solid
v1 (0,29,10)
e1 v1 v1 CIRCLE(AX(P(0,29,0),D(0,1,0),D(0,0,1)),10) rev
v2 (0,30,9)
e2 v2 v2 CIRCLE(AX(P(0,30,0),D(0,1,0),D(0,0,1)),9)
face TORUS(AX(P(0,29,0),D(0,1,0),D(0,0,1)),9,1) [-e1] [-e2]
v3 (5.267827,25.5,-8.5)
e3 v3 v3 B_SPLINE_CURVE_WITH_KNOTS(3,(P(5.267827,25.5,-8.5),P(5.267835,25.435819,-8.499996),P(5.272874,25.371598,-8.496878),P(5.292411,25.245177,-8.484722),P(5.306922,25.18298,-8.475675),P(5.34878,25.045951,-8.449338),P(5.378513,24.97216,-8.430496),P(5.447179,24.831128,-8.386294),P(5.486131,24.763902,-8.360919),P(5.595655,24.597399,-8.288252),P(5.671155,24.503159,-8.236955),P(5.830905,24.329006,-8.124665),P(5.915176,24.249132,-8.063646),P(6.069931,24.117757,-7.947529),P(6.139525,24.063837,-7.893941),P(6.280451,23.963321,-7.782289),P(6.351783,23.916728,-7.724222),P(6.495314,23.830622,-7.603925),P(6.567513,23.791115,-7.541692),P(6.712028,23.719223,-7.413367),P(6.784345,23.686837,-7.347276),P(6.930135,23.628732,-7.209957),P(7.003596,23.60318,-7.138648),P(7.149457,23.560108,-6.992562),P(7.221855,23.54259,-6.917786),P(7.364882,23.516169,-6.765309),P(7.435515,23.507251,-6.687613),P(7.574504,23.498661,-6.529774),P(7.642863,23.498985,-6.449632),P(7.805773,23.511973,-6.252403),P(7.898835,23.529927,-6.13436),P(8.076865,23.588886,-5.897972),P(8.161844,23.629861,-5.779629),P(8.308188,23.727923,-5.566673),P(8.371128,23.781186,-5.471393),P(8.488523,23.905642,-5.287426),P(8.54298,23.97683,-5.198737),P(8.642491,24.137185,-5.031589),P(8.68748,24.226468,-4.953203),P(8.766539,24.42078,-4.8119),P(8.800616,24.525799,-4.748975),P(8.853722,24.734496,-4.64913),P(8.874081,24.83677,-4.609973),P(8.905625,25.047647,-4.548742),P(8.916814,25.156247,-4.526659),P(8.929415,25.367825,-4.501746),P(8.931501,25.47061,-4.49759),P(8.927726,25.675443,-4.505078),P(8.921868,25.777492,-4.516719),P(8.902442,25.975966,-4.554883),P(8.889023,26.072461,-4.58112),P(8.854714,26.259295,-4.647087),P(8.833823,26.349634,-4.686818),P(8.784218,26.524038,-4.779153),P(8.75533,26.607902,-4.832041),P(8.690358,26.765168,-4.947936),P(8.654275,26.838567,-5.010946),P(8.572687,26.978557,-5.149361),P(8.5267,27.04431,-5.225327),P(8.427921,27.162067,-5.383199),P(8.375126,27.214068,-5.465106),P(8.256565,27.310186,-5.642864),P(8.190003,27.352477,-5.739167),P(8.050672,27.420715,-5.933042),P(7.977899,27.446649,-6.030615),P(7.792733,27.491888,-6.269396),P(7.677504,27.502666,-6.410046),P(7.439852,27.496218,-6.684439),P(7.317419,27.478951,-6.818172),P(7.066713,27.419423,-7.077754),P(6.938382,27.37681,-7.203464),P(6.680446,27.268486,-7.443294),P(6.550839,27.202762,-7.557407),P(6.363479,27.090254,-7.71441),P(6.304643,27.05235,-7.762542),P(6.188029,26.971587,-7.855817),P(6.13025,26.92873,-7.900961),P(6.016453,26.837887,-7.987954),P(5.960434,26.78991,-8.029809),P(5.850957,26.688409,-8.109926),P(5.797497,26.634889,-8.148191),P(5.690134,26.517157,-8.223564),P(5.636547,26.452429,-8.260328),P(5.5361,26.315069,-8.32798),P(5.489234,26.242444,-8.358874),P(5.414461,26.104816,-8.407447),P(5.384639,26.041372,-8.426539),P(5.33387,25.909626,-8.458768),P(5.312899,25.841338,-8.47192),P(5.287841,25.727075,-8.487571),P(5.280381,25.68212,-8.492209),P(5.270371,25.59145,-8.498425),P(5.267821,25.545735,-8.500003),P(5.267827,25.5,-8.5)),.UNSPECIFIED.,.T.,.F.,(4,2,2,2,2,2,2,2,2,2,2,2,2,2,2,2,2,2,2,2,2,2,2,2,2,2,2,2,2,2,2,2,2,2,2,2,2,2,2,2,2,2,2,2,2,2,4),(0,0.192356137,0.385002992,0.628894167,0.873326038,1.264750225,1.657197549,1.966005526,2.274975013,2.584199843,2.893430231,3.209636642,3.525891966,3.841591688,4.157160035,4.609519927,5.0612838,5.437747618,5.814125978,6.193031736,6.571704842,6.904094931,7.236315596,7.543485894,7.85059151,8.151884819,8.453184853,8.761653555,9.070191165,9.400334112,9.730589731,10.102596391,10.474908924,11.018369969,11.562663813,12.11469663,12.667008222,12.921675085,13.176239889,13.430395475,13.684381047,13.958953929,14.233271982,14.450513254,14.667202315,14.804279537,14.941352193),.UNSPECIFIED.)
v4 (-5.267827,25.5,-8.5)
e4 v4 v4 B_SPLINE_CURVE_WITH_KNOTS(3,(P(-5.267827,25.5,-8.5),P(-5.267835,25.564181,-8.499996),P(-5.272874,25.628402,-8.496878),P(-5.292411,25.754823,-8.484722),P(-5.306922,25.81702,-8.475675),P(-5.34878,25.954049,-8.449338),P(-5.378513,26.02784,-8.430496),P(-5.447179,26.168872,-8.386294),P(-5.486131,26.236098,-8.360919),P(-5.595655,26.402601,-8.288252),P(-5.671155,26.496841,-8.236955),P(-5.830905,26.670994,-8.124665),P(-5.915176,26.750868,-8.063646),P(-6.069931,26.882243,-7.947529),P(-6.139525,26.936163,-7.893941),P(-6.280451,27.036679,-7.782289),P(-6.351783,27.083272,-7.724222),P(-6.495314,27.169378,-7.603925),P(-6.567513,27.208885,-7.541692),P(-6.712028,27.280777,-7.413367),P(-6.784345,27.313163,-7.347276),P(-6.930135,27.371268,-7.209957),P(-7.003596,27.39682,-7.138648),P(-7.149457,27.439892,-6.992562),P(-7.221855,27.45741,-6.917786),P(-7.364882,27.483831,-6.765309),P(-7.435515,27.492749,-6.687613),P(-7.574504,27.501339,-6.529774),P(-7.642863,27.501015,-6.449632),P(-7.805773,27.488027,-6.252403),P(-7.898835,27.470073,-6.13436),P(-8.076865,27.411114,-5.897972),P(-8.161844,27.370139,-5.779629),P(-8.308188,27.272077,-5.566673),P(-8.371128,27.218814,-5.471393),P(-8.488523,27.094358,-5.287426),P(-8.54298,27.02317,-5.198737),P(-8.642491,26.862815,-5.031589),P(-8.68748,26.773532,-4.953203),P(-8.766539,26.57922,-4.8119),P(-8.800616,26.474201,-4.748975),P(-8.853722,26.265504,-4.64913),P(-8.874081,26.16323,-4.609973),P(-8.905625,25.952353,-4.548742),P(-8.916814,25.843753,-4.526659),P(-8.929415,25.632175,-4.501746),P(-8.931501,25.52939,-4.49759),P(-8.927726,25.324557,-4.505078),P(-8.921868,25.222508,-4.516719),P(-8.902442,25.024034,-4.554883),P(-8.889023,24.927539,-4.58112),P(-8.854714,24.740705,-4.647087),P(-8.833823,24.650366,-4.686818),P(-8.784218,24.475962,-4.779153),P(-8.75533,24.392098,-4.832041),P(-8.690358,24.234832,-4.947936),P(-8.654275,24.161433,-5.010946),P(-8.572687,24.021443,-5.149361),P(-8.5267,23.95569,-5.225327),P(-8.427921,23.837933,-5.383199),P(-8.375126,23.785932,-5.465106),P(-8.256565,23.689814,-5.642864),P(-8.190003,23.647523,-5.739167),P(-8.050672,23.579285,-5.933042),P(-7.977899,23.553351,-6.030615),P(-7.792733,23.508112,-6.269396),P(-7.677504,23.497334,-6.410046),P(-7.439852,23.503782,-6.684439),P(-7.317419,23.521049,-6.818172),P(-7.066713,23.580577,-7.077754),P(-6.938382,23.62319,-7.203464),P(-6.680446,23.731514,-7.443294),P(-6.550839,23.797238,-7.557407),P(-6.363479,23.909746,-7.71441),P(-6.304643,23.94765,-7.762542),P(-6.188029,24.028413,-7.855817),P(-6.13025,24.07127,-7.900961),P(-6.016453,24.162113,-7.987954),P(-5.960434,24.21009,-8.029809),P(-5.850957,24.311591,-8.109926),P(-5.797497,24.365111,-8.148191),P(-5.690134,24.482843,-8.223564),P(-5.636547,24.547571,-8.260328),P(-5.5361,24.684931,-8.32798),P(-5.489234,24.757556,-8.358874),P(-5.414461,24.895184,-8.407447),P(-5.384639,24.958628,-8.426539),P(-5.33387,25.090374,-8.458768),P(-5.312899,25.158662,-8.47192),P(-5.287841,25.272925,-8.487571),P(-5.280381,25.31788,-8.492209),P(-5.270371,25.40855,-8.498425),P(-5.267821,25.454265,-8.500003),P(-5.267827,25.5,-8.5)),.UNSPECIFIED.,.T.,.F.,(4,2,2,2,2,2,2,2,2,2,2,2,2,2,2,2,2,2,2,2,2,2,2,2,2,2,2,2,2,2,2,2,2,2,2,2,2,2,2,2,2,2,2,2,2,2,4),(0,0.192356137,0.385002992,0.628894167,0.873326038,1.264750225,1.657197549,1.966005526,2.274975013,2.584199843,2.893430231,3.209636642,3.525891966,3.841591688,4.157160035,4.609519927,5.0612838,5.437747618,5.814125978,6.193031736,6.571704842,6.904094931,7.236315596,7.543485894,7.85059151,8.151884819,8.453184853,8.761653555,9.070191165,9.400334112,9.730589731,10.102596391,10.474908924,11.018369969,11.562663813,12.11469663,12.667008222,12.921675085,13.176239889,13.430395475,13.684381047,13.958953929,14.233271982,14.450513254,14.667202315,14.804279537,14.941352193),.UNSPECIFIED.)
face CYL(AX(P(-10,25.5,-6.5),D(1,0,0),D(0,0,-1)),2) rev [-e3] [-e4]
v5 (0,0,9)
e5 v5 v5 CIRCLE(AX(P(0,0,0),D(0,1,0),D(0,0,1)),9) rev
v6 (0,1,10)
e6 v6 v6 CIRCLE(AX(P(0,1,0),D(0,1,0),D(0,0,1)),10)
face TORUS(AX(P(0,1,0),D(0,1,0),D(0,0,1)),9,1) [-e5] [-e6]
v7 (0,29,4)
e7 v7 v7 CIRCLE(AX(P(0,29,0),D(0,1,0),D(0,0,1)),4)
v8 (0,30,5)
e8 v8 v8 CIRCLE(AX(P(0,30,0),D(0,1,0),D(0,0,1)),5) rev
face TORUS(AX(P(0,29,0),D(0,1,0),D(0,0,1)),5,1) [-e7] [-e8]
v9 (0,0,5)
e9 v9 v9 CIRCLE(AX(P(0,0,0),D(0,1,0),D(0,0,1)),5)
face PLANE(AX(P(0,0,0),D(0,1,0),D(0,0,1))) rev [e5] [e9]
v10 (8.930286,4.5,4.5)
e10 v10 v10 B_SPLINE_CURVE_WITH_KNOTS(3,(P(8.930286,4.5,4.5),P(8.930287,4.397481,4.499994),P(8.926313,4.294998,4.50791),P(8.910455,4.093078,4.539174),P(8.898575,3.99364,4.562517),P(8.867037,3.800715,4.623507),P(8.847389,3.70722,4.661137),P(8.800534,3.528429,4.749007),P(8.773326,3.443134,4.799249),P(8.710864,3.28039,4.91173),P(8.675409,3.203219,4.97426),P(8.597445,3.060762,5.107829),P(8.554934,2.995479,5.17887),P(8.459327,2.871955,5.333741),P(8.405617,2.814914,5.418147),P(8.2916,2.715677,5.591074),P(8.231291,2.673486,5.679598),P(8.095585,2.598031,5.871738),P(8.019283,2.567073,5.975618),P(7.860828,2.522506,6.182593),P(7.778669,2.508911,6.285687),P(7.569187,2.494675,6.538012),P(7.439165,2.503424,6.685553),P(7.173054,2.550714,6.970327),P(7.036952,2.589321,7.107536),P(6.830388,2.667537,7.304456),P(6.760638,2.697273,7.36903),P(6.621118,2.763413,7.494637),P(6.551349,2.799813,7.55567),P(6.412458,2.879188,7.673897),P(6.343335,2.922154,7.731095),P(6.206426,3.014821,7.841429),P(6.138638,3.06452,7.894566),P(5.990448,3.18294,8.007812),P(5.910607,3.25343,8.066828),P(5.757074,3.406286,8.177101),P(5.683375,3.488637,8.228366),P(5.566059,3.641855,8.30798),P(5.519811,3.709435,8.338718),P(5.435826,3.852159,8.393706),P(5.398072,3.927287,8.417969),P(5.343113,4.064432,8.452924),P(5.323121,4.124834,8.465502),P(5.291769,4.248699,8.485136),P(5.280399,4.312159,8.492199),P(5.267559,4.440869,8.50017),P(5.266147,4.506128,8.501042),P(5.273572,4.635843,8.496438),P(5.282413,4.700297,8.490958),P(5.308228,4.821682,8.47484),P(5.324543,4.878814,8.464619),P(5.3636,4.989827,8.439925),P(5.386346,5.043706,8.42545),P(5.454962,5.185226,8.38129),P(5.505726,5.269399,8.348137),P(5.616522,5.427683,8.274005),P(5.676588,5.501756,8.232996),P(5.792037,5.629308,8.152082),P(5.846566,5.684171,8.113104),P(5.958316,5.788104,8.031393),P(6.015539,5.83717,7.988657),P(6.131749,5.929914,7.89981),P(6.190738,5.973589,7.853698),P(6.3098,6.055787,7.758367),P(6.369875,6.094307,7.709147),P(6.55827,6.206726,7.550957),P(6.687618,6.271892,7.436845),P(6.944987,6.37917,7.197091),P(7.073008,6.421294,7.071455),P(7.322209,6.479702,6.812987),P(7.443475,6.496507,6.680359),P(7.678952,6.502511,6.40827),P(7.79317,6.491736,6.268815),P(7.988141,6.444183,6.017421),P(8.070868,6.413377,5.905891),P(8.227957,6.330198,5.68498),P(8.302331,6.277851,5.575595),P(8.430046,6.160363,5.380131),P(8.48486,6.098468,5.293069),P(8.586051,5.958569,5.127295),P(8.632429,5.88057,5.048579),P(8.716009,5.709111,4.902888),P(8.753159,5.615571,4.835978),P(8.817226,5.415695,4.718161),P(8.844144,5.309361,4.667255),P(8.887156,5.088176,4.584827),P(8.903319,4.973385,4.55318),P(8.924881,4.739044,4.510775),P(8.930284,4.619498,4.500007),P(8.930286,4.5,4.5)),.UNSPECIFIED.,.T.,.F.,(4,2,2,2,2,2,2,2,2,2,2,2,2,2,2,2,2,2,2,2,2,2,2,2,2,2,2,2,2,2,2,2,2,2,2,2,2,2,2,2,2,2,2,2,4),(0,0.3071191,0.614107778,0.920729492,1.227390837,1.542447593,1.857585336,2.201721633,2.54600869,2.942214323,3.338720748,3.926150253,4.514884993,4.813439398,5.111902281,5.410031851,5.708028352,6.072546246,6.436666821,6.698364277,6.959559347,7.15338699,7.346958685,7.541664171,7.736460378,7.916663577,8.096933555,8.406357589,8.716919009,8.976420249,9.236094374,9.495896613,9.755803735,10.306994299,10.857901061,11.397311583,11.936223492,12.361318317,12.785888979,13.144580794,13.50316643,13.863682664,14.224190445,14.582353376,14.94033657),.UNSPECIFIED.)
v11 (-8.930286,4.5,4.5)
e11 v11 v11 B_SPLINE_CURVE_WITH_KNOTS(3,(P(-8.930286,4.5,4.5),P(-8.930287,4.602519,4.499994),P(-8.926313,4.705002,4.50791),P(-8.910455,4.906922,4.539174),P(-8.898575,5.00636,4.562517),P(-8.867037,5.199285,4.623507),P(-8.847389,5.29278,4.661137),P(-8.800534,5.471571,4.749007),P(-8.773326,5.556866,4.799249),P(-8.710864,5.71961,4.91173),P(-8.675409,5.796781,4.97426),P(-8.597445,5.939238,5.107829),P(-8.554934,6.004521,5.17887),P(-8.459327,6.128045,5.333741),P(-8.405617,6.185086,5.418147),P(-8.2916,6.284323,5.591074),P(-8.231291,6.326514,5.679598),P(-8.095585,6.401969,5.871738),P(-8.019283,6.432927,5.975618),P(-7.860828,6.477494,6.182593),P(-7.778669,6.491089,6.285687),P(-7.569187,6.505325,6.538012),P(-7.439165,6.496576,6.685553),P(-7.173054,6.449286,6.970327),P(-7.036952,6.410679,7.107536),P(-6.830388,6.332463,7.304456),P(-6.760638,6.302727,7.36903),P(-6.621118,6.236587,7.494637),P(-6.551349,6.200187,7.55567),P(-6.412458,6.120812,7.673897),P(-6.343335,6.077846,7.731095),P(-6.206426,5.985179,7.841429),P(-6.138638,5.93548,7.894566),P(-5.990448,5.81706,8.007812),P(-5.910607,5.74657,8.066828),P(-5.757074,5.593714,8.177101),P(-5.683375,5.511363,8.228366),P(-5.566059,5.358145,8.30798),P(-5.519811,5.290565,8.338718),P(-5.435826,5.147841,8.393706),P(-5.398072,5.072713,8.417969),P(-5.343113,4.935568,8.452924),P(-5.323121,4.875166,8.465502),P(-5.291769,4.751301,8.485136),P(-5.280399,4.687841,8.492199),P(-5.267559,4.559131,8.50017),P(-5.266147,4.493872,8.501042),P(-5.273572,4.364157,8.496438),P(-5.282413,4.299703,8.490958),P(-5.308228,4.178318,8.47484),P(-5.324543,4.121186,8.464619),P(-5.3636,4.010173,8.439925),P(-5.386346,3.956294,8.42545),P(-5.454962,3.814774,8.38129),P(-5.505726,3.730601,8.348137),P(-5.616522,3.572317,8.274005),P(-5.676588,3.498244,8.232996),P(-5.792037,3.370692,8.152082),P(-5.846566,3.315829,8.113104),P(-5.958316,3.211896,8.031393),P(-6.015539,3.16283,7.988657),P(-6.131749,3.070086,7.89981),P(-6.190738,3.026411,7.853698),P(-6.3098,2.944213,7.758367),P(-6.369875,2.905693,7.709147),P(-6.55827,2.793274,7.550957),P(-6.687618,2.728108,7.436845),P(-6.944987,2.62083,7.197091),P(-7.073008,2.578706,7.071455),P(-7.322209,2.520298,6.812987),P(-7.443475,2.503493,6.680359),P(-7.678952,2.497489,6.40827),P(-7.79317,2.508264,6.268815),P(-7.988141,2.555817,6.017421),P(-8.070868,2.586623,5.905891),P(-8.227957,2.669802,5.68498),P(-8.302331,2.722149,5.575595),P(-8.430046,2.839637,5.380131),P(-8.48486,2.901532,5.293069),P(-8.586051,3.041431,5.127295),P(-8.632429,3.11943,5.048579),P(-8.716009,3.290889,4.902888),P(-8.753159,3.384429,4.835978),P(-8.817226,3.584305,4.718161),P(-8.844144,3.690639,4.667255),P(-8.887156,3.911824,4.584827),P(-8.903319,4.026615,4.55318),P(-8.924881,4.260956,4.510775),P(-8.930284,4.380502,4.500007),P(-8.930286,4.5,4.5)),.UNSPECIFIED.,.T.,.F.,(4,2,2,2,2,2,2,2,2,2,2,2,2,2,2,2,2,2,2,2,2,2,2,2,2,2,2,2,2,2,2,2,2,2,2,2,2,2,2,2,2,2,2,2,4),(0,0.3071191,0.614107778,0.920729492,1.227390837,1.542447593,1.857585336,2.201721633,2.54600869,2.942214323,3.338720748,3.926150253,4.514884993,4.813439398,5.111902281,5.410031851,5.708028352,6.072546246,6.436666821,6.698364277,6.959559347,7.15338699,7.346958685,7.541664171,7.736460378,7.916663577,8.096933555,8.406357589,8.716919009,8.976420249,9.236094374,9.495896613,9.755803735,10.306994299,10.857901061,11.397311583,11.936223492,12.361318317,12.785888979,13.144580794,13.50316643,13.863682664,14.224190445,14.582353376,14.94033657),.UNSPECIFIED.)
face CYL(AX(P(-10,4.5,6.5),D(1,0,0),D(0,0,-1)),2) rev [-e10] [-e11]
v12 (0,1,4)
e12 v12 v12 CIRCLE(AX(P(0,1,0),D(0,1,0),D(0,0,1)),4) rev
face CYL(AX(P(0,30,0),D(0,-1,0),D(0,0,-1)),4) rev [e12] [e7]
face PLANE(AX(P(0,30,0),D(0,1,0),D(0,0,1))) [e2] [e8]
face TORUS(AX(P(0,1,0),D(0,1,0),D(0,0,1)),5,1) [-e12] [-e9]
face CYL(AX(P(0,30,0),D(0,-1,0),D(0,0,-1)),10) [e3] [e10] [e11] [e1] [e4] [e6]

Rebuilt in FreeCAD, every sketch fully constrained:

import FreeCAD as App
import Part
import Sketcher

V = App.Vector


def edges_at(feature, points):
    """Names of the edges that pass closest to the given points."""
    edges = feature.Shape.Edges
    near = lambda p: min(range(len(edges)), key=lambda i: edges[i].distToShape(Part.Vertex(*p))[0])
    return sorted({f"Edge{near(p) + 1}" for p in points})

doc = App.newDocument("Part")
body = doc.addObject("PartDesign::Body", "Body")

# Sketch on XZ plane
sketch1 = body.newObject("Sketcher::SketchObject", "Sketch")
sketch1.AttachmentSupport = (doc.getObject("XZ_Plane"), [""])
sketch1.MapMode = "FlatFace"
sketch1.addGeometry([
    Part.Circle(V(0, 0, 0), V(0, 0, 1), 10),
    Part.Circle(V(0, 0, 0), V(0, 0, 1), 4),
], False)
sketch1.addConstraint([
    Sketcher.Constraint("Coincident", 0, 3, -1, 1),
    Sketcher.Constraint("Coincident", 1, 3, -1, 1),
    Sketcher.Constraint("Diameter", 0, 20.0),
    Sketcher.Constraint("Diameter", 1, 8.0),
])
pad1 = body.newObject("PartDesign::Pad", "Pad")
pad1.Profile = sketch1
pad1.Length = 30
pad1.Reversed = True

# Sketch on YZ plane
sketch2 = body.newObject("Sketcher::SketchObject", "Sketch001")
sketch2.AttachmentSupport = (doc.getObject("YZ_Plane"), [""])
sketch2.MapMode = "FlatFace"
sketch2.addGeometry([
    Part.Circle(V(25.5, -6.5, 0), V(0, 0, 1), 2),
    Part.Circle(V(4.5, 6.5, 0), V(0, 0, 1), 2),
], False)
sketch2.addConstraint([
    Sketcher.Constraint("Equal", 0, 1),
    Sketcher.Constraint("Diameter", 0, 4.0),
    Sketcher.Constraint("DistanceX", 1, 3, 0, 3, 21.0),
    Sketcher.Constraint("DistanceY", 0, 3, 1, 3, 13.0),
    Sketcher.Constraint("DistanceX", -1, 1, 0, 3, 25.5),
    Sketcher.Constraint("DistanceY", 0, 3, -1, 1, 6.5),
])
pocket1 = body.newObject("PartDesign::Pocket", "Pocket")
pocket1.Profile = sketch2
pocket1.Type = "ThroughAll"
pocket1.Midplane = True
doc.recompute()

fillet = body.newObject("PartDesign::Fillet", "Fillet")
fillet.Base = (pocket1, edges_at(pocket1, [
    (-10, 0, 0),
    (-10, 30, 0),
    (-4, 0, 0),
    (-4, 30, 0),
]))
fillet.Radius = 1

doc.recompute()
